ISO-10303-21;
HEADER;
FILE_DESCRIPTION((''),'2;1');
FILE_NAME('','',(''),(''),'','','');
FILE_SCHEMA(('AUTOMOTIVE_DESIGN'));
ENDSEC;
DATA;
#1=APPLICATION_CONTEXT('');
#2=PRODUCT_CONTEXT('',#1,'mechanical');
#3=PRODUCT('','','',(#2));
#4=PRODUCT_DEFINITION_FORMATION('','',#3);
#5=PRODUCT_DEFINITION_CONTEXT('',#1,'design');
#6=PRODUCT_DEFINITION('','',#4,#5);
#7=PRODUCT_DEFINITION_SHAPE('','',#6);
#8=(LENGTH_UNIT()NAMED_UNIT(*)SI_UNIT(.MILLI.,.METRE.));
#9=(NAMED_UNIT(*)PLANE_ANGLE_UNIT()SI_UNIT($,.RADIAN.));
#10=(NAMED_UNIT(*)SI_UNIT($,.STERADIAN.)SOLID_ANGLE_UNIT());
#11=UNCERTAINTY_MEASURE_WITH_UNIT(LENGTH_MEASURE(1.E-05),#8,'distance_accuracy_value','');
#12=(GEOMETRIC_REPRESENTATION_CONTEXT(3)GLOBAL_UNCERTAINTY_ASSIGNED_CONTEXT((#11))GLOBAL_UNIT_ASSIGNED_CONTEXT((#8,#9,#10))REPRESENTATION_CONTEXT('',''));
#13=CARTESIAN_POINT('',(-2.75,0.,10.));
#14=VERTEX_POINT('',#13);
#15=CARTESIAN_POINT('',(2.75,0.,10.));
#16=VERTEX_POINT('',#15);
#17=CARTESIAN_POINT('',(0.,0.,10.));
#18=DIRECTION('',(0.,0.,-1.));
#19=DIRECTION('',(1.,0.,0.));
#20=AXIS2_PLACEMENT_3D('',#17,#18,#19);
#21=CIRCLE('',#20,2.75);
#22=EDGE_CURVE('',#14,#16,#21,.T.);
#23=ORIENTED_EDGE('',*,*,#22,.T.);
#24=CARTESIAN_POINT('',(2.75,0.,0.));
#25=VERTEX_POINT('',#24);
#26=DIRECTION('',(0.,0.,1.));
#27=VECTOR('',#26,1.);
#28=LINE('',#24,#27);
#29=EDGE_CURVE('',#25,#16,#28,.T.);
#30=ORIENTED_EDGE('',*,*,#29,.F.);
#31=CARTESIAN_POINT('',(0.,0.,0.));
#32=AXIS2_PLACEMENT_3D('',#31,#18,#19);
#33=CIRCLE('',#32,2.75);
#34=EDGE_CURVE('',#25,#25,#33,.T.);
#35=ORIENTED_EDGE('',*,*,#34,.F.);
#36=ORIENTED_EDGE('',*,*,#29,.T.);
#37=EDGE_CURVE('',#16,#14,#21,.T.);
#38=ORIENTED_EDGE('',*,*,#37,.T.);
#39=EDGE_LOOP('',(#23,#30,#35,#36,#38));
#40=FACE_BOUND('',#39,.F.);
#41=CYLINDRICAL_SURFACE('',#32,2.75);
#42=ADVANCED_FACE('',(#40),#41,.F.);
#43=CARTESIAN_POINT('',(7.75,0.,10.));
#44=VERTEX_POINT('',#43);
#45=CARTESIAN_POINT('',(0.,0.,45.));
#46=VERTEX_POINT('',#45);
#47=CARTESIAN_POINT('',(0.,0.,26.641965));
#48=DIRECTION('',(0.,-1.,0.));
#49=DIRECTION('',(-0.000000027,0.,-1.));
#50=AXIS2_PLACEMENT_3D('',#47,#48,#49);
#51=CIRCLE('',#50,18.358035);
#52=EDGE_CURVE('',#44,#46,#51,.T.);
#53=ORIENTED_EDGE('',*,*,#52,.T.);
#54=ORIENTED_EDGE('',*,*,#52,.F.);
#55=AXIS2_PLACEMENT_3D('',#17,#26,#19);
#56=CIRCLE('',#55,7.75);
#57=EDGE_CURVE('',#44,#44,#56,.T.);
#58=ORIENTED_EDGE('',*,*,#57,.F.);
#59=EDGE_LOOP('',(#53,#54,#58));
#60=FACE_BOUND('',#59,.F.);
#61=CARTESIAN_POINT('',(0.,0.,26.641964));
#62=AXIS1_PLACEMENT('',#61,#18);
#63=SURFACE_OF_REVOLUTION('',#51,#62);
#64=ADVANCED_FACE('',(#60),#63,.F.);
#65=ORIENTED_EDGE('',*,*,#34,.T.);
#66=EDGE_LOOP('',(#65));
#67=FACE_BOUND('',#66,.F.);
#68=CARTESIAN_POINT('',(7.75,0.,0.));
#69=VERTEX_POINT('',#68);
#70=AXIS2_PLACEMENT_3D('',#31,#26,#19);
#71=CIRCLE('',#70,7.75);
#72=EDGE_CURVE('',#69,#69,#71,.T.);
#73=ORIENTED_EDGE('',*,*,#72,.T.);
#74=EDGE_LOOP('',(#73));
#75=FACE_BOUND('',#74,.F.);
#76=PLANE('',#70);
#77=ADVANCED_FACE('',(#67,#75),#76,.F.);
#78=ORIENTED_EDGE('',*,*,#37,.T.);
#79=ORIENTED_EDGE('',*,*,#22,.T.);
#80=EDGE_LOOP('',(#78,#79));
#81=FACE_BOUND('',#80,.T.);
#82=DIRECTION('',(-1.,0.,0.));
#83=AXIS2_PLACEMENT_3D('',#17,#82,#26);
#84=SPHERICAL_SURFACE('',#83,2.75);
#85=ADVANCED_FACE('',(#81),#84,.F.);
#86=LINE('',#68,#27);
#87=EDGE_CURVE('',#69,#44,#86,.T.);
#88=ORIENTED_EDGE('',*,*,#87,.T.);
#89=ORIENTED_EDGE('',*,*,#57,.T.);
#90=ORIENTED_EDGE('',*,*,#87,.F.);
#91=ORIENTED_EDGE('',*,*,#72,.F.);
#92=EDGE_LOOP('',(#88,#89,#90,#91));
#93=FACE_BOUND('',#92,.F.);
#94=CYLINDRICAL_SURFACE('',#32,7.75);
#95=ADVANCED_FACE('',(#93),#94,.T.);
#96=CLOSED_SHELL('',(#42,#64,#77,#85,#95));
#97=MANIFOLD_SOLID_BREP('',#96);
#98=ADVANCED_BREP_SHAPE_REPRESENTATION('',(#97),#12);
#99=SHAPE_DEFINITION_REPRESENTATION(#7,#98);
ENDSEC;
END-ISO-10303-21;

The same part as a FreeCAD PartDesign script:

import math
import FreeCAD as App
import Part
import Sketcher
Q = App.Units.Quantity

doc = App.newDocument("Part")
params = doc.addObject("Spreadsheet::Sheet", "Params")
for row, (alias, value) in enumerate([
    ("sketch1_diameter", "15.5 mm"),
    ("pad1_length", "10 mm"),
    ("revolution_angle", "360 deg"),
    ("sketch3_diameter", "5.5 mm"),
    ("pocket1_length", "10 mm"),
    ("sketch4_radius", "2.75 mm"),
    ("groove_angle", "360 deg"),
], start=1):
    params.set(f"A{row}", alias)
    params.set(f"B{row}", "=" + value)
    params.setAlias(f"B{row}", alias)

body = doc.addObject("PartDesign::Body", "Body")

# Sketch on XY plane
sketch1 = body.newObject("Sketcher::SketchObject", "Sketch")
sketch1.AttachmentSupport = (doc.getObject("XY_Plane"), [""])
sketch1.MapMode = "FlatFace"
sketch1.addGeometry(Part.Circle(App.Vector(0, 0, 0), App.Vector(0, 0, 1), 8), False)
sketch1.addConstraint([
    Sketcher.Constraint("Coincident", 0, 3, -1, 1),
    Sketcher.Constraint("Diameter", 0, Q("15.5 mm")),
])
sketch1.setExpression("Constraints[1]", "Params.sketch1_diameter")
pad1 = body.newObject("PartDesign::Pad", "Pad")
pad1.Profile = sketch1
pad1.setExpression("Length", "Params.pad1_length")

# Sketch on XZ plane
sketch2 = body.newObject("Sketcher::SketchObject", "Sketch001")
sketch2.AttachmentSupport = (doc.getObject("XZ_Plane"), [""])
sketch2.MapMode = "FlatFace"
sketch2.addGeometry([
    Part.ArcOfCircle(Part.Circle(App.Vector(0, 27, 0), App.Vector(0, 0, 1), 18), math.radians(-90), math.radians(90)),
    Part.LineSegment(App.Vector(0, 45, 0), App.Vector(0, 8, 0)),
], False)
sketch2.addConstraint([
    Sketcher.Constraint("Coincident", 0, 1, 1, 2),
    Sketcher.Constraint("Coincident", 1, 1, 0, 2),
    Sketcher.Constraint("Vertical", 1),
    Sketcher.Constraint("PointOnObject", 0, 3, -2),
    Sketcher.Constraint("PointOnObject", 0, 1, -2),
    Sketcher.Constraint("DistanceY", -1, 1, 1, 1, Q("45 mm")),
    Sketcher.Constraint("Radius", 0, Q("18.358035 mm")),
])
revolution = body.newObject("PartDesign::Revolution", "Revolution")
revolution.Profile = sketch2
revolution.ReferenceAxis = (sketch2, ["V_Axis"])
revolution.setExpression("Angle", "Params.revolution_angle")

# Sketch on XY plane
sketch3 = body.newObject("Sketcher::SketchObject", "Sketch002")
sketch3.AttachmentSupport = (doc.getObject("XY_Plane"), [""])
sketch3.MapMode = "FlatFace"
sketch3.addGeometry(Part.Circle(App.Vector(0, 0, 0), App.Vector(0, 0, 1), 2.8), False)
sketch3.addConstraint([
    Sketcher.Constraint("Coincident", 0, 3, -1, 1),
    Sketcher.Constraint("Diameter", 0, Q("5.5 mm")),
])
sketch3.setExpression("Constraints[1]", "Params.sketch3_diameter")
pocket1 = body.newObject("PartDesign::Pocket", "Pocket")
pocket1.Profile = sketch3
pocket1.setExpression("Length", "Params.pocket1_length")
pocket1.Reversed = True

# Sketch on XZ plane
sketch4 = body.newObject("Sketcher::SketchObject", "Sketch003")
sketch4.AttachmentSupport = (doc.getObject("XZ_Plane"), [""])
sketch4.MapMode = "FlatFace"
sketch4.addGeometry([
    Part.ArcOfCircle(Part.Circle(App.Vector(0, 10, 0), App.Vector(0, 0, 1), 2.8), math.radians(0), math.radians(180)),
    Part.LineSegment(App.Vector(-2.8, 10, 0), App.Vector(2.8, 10, 0)),
], False)
sketch4.addGeometry(Part.LineSegment(App.Vector(-2.8, 10, 0), App.Vector(2.8, 10, 0)), True)  # axis
sketch4.addConstraint([
    Sketcher.Constraint("Coincident", 0, 1, 1, 2),
    Sketcher.Constraint("Coincident", 1, 1, 0, 2),
    Sketcher.Constraint("Horizontal", 1),
    Sketcher.Constraint("Horizontal", 2),
    Sketcher.Constraint("Coincident", 2, 1, 1, 1),
    Sketcher.Constraint("PointOnObject", 0, 3, -2),
    Sketcher.Constraint("Equal", 1, 2),
    Sketcher.Constraint("Radius", 0, Q("2.75 mm")),
    Sketcher.Constraint("DistanceY", -1, 1, 0, 3, Q("10 mm")),
    Sketcher.Constraint("DistanceY", -1, 1, 0, 1, Q("10 mm")),
])
sketch4.setExpression("Constraints[7]", "Params.sketch4_radius")
groove = body.newObject("PartDesign::Groove", "Groove")
groove.Profile = sketch4
groove.ReferenceAxis = (sketch4, ["Axis0"])
groove.setExpression("Angle", "Params.groove_angle")

doc.recompute()
